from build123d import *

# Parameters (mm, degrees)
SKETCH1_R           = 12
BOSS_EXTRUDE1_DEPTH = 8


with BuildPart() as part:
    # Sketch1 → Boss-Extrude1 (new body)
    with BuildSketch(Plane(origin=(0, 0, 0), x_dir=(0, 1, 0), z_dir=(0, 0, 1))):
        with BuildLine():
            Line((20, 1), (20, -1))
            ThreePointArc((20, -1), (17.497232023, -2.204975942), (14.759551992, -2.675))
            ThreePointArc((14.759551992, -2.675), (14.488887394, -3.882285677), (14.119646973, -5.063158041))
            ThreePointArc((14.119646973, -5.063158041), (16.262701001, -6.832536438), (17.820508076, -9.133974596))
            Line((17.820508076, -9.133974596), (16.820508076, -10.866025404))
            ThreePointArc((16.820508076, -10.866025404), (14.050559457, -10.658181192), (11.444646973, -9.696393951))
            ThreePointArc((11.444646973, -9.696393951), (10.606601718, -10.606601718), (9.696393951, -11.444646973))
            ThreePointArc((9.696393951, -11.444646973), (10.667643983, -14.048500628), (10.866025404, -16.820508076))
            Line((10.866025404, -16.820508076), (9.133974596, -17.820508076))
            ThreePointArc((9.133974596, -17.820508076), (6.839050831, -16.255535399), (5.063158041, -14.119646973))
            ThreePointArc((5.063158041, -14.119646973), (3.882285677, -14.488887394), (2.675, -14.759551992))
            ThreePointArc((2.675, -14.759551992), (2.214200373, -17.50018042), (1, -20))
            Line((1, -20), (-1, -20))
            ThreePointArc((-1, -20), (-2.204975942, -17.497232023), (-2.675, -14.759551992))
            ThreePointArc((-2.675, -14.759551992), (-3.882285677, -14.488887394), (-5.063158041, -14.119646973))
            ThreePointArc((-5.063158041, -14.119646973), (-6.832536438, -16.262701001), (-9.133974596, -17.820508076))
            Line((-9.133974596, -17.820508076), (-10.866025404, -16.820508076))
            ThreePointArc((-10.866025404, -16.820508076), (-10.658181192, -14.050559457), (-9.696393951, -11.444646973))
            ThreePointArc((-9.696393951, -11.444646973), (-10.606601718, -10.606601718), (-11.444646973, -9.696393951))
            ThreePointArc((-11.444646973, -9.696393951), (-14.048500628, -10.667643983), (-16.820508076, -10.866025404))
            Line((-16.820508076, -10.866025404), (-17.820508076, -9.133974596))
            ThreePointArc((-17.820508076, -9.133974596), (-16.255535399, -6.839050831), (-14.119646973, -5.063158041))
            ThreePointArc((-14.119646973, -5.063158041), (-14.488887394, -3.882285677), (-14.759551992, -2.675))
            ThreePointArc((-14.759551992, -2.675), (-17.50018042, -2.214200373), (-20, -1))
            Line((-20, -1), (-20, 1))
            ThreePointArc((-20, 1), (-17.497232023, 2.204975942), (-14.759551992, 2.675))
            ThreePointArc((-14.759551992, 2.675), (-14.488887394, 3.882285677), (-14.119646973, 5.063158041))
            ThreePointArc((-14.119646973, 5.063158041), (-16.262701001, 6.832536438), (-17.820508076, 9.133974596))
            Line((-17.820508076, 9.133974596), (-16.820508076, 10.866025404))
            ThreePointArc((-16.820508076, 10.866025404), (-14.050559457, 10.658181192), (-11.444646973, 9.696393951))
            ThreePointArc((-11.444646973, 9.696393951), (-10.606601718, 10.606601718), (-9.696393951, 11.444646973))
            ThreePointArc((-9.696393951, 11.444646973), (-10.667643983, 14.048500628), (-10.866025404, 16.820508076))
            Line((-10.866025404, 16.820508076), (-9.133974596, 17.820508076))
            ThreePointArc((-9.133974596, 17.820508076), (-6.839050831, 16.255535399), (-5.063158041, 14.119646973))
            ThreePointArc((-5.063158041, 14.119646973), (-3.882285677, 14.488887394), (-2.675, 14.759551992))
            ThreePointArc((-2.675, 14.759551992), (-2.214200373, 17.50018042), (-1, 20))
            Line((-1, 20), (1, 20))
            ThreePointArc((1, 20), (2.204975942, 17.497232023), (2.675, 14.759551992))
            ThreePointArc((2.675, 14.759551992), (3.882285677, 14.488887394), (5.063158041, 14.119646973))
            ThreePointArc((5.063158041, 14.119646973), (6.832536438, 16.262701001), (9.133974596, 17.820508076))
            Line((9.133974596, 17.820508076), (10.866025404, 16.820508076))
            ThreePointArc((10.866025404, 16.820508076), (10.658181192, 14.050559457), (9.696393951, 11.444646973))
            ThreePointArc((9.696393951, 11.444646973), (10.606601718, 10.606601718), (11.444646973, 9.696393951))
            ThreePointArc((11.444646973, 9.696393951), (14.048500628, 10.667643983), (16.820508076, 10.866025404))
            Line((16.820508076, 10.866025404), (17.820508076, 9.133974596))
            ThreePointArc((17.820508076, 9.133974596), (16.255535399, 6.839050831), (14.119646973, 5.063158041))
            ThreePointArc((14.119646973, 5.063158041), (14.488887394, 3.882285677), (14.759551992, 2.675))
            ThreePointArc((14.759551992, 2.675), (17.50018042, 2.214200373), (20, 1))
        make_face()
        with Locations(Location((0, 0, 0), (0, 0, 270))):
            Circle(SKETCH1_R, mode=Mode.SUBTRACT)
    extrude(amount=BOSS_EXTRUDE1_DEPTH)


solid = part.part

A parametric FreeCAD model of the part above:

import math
import FreeCAD as App
import Part
import Sketcher

V = App.Vector
Q = App.Units.Quantity

doc = App.newDocument("Part")
body = doc.addObject("PartDesign::Body", "Body")

# Sketch on XY plane
sketch1 = doc.addObject("Sketcher::SketchObject", "Sketch")
body.addObject(sketch1)
sketch1.AttachmentSupport = (doc.XY_Plane, [""])
sketch1.MapMode = "FlatFace"
sketch1.addGeometry(Part.LineSegment(V(1, 20, 0), V(-1, 20, 0)), False)
sketch1.addGeometry(Part.ArcOfCircle(Part.Circle(V(7.1, 14.5, 0), V(0, 0, 1), 9.8), math.radians(146), math.radians(179)), False)
sketch1.addGeometry(Part.ArcOfCircle(Part.Circle(V(0, 0, 0), V(0, 0, 1), 15), math.radians(100.27), math.radians(109.73)), False)
sketch1.addGeometry(Part.ArcOfCircle(Part.Circle(V(-13.6, 8.9, 0), V(0, 0, 1), 10), math.radians(32), math.radians(64)), False)
sketch1.addGeometry(Part.LineSegment(V(-9.1, 17.8, 0), V(-10.9, 16.8, 0)), False)
sketch1.addGeometry(Part.ArcOfCircle(Part.Circle(V(-1.1, 16.1, 0), V(0, 0, 1), 9.8), math.radians(176), math.radians(209)), False)
sketch1.addGeometry(Part.ArcOfCircle(Part.Circle(V(0, 0, 0), V(0, 0, 1), 15), math.radians(130.27), math.radians(139.73)), False)
sketch1.addGeometry(Part.ArcOfCircle(Part.Circle(V(-16.2, 0.9, 0), V(0, 0, 1), 10), math.radians(62), math.radians(94)), False)
sketch1.addGeometry(Part.LineSegment(V(-16.8, 10.9, 0), V(-17.8, 9.1, 0)), False)
sketch1.addGeometry(Part.ArcOfCircle(Part.Circle(V(-9, 13.4, 0), V(0, 0, 1), 9.8), math.radians(-154), math.radians(-121)), False)
sketch1.addGeometry(Part.ArcOfCircle(Part.Circle(V(0, 0, 0), V(0, 0, 1), 15), math.radians(160.27), math.radians(169.73)), False)
sketch1.addGeometry(Part.ArcOfCircle(Part.Circle(V(-14.5, -7.3, 0), V(0, 0, 1), 10), math.radians(92), math.radians(124)), False)
sketch1.addGeometry(Part.LineSegment(V(-20, 1, 0), V(-20, -1, 0)), False)
sketch1.addGeometry(Part.ArcOfCircle(Part.Circle(V(-14.5, 7.1, 0), V(0, 0, 1), 9.8), math.radians(-124), math.radians(-91)), False)
sketch1.addGeometry(Part.ArcOfCircle(Part.Circle(V(0, 0, 0), V(0, 0, 1), 15), math.radians(-169.73), math.radians(-160.27)), False)
sketch1.addGeometry(Part.ArcOfCircle(Part.Circle(V(-8.9, -13.6, 0), V(0, 0, 1), 10), math.radians(122), math.radians(154)), False)
sketch1.addGeometry(Part.LineSegment(V(-17.8, -9.1, 0), V(-16.8, -10.9, 0)), False)
sketch1.addGeometry(Part.ArcOfCircle(Part.Circle(V(-16.1, -1.1, 0), V(0, 0, 1), 9.8), math.radians(-94), math.radians(-61)), False)
sketch1.addGeometry(Part.ArcOfCircle(Part.Circle(V(0, 0, 0), V(0, 0, 1), 15), math.radians(-139.73), math.radians(-130.27)), False)
sketch1.addGeometry(Part.ArcOfCircle(Part.Circle(V(-0.9, -16.2, 0), V(0, 0, 1), 10), math.radians(152), math.radians(184)), False)
sketch1.addGeometry(Part.LineSegment(V(-10.9, -16.8, 0), V(-9.1, -17.8, 0)), False)
sketch1.addGeometry(Part.ArcOfCircle(Part.Circle(V(-13.4, -9, 0), V(0, 0, 1), 9.8), math.radians(-64), math.radians(-31)), False)
sketch1.addGeometry(Part.ArcOfCircle(Part.Circle(V(0, 0, 0), V(0, 0, 1), 15), math.radians(-109.73), math.radians(-100.27)), False)
sketch1.addGeometry(Part.ArcOfCircle(Part.Circle(V(7.3, -14.5, 0), V(0, 0, 1), 10), math.radians(-178), math.radians(-146)), False)
sketch1.addGeometry(Part.LineSegment(V(-1, -20, 0), V(1, -20, 0)), False)
sketch1.addGeometry(Part.ArcOfCircle(Part.Circle(V(-7.1, -14.5, 0), V(0, 0, 1), 9.8), math.radians(-34), math.radians(-1)), False)
sketch1.addGeometry(Part.ArcOfCircle(Part.Circle(V(0, 0, 0), V(0, 0, 1), 15), math.radians(-79.73), math.radians(-70.27)), False)
sketch1.addGeometry(Part.ArcOfCircle(Part.Circle(V(13.6, -8.9, 0), V(0, 0, 1), 10), math.radians(-148), math.radians(-116)), False)
sketch1.addGeometry(Part.LineSegment(V(9.1, -17.8, 0), V(10.9, -16.8, 0)), False)
sketch1.addGeometry(Part.ArcOfCircle(Part.Circle(V(1.1, -16.1, 0), V(0, 0, 1), 9.8), math.radians(-4), math.radians(29)), False)
sketch1.addGeometry(Part.ArcOfCircle(Part.Circle(V(0, 0, 0), V(0, 0, 1), 15), math.radians(-49.73), math.radians(-40.27)), False)
sketch1.addGeometry(Part.ArcOfCircle(Part.Circle(V(16.2, -0.9, 0), V(0, 0, 1), 10), math.radians(-118), math.radians(-86)), False)
sketch1.addGeometry(Part.LineSegment(V(16.8, -10.9, 0), V(17.8, -9.1, 0)), False)
sketch1.addGeometry(Part.ArcOfCircle(Part.Circle(V(9, -13.4, 0), V(0, 0, 1), 9.8), math.radians(26), math.radians(59)), False)
sketch1.addGeometry(Part.ArcOfCircle(Part.Circle(V(0, 0, 0), V(0, 0, 1), 15), math.radians(-19.73), math.radians(-10.27)), False)
sketch1.addGeometry(Part.ArcOfCircle(Part.Circle(V(14.5, 7.3, 0), V(0, 0, 1), 10), math.radians(-88), math.radians(-56)), False)
sketch1.addGeometry(Part.LineSegment(V(20, -1, 0), V(20, 1, 0)), False)
sketch1.addGeometry(Part.ArcOfCircle(Part.Circle(V(14.5, -7.1, 0), V(0, 0, 1), 9.8), math.radians(56), math.radians(89)), False)
sketch1.addGeometry(Part.ArcOfCircle(Part.Circle(V(0, 0, 0), V(0, 0, 1), 15), math.radians(10.27), math.radians(19.73)), False)
sketch1.addGeometry(Part.ArcOfCircle(Part.Circle(V(8.9, 13.6, 0), V(0, 0, 1), 10), math.radians(-58), math.radians(-26)), False)
sketch1.addGeometry(Part.LineSegment(V(17.8, 9.1, 0), V(16.8, 10.9, 0)), False)
sketch1.addGeometry(Part.ArcOfCircle(Part.Circle(V(16.1, 1.1, 0), V(0, 0, 1), 9.8), math.radians(86), math.radians(119)), False)
sketch1.addGeometry(Part.ArcOfCircle(Part.Circle(V(0, 0, 0), V(0, 0, 1), 15), math.radians(40.27), math.radians(49.73)), False)
sketch1.addGeometry(Part.ArcOfCircle(Part.Circle(V(0.9, 16.2, 0), V(0, 0, 1), 10), math.radians(-28), math.radians(4)), False)
sketch1.addGeometry(Part.LineSegment(V(10.9, 16.8, 0), V(9.1, 17.8, 0)), False)
sketch1.addGeometry(Part.ArcOfCircle(Part.Circle(V(13.4, 9, 0), V(0, 0, 1), 9.8), math.radians(116), math.radians(149)), False)
sketch1.addGeometry(Part.ArcOfCircle(Part.Circle(V(0, 0, 0), V(0, 0, 1), 15), math.radians(70.27), math.radians(79.73)), False)
sketch1.addGeometry(Part.ArcOfCircle(Part.Circle(V(-7.3, 14.5, 0), V(0, 0, 1), 10), math.radians(2), math.radians(34)), False)
sketch1.addGeometry(Part.Circle(V(0, 0, 0), V(0, 0, 1), 12), False)
sketch1.addConstraint(Sketcher.Constraint("Coincident", 0, 2, 1, 1))
sketch1.addConstraint(Sketcher.Constraint("Coincident", 1, 2, 2, 1))
sketch1.addConstraint(Sketcher.Constraint("Coincident", 2, 2, 3, 1))
sketch1.addConstraint(Sketcher.Constraint("Coincident", 3, 2, 4, 1))
sketch1.addConstraint(Sketcher.Constraint("Coincident", 4, 2, 5, 1))
sketch1.addConstraint(Sketcher.Constraint("Coincident", 5, 2, 6, 1))
sketch1.addConstraint(Sketcher.Constraint("Coincident", 6, 2, 7, 1))
sketch1.addConstraint(Sketcher.Constraint("Coincident", 7, 2, 8, 1))
sketch1.addConstraint(Sketcher.Constraint("Coincident", 8, 2, 9, 1))
sketch1.addConstraint(Sketcher.Constraint("Coincident", 9, 2, 10, 1))
sketch1.addConstraint(Sketcher.Constraint("Coincident", 10, 2, 11, 1))
sketch1.addConstraint(Sketcher.Constraint("Coincident", 11, 2, 12, 1))
sketch1.addConstraint(Sketcher.Constraint("Coincident", 12, 2, 13, 1))
sketch1.addConstraint(Sketcher.Constraint("Coincident", 13, 2, 14, 1))
sketch1.addConstraint(Sketcher.Constraint("Coincident", 14, 2, 15, 1))
sketch1.addConstraint(Sketcher.Constraint("Coincident", 15, 2, 16, 1))
sketch1.addConstraint(Sketcher.Constraint("Coincident", 16, 2, 17, 1))
sketch1.addConstraint(Sketcher.Constraint("Coincident", 17, 2, 18, 1))
sketch1.addConstraint(Sketcher.Constraint("Coincident", 18, 2, 19, 1))
sketch1.addConstraint(Sketcher.Constraint("Coincident", 19, 2, 20, 1))
sketch1.addConstraint(Sketcher.Constraint("Coincident", 20, 2, 21, 1))
sketch1.addConstraint(Sketcher.Constraint("Coincident", 21, 2, 22, 1))
sketch1.addConstraint(Sketcher.Constraint("Coincident", 22, 2, 23, 1))
sketch1.addConstraint(Sketcher.Constraint("Coincident", 23, 2, 24, 1))
sketch1.addConstraint(Sketcher.Constraint("Coincident", 24, 2, 25, 1))
sketch1.addConstraint(Sketcher.Constraint("Coincident", 25, 2, 26, 1))
sketch1.addConstraint(Sketcher.Constraint("Coincident", 26, 2, 27, 1))
sketch1.addConstraint(Sketcher.Constraint("Coincident", 27, 2, 28, 1))
sketch1.addConstraint(Sketcher.Constraint("Coincident", 28, 2, 29, 1))
sketch1.addConstraint(Sketcher.Constraint("Coincident", 29, 2, 30, 1))
sketch1.addConstraint(Sketcher.Constraint("Coincident", 30, 2, 31, 1))
sketch1.addConstraint(Sketcher.Constraint("Coincident", 31, 2, 32, 1))
sketch1.addConstraint(Sketcher.Constraint("Coincident", 32, 2, 33, 1))
sketch1.addConstraint(Sketcher.Constraint("Coincident", 33, 2, 34, 1))
sketch1.addConstraint(Sketcher.Constraint("Coincident", 34, 2, 35, 1))
sketch1.addConstraint(Sketcher.Constraint("Coincident", 35, 2, 36, 1))
sketch1.addConstraint(Sketcher.Constraint("Coincident", 36, 2, 37, 1))
sketch1.addConstraint(Sketcher.Constraint("Coincident", 37, 2, 38, 1))
sketch1.addConstraint(Sketcher.Constraint("Coincident", 38, 2, 39, 1))
sketch1.addConstraint(Sketcher.Constraint("Coincident", 39, 2, 40, 1))
sketch1.addConstraint(Sketcher.Constraint("Coincident", 40, 2, 41, 1))
sketch1.addConstraint(Sketcher.Constraint("Coincident", 41, 2, 42, 1))
sketch1.addConstraint(Sketcher.Constraint("Coincident", 42, 2, 43, 1))
sketch1.addConstraint(Sketcher.Constraint("Coincident", 43, 2, 44, 1))
sketch1.addConstraint(Sketcher.Constraint("Coincident", 44, 2, 45, 1))
sketch1.addConstraint(Sketcher.Constraint("Coincident", 45, 2, 46, 1))
sketch1.addConstraint(Sketcher.Constraint("Coincident", 46, 2, 47, 1))
sketch1.addConstraint(Sketcher.Constraint("Coincident", 47, 2, 0, 1))
sketch1.addConstraint(Sketcher.Constraint("Horizontal", 0))
sketch1.addConstraint(Sketcher.Constraint("Vertical", 12))
sketch1.addConstraint(Sketcher.Constraint("Horizontal", 24))
sketch1.addConstraint(Sketcher.Constraint("Vertical", 36))
sketch1.addConstraint(Sketcher.Constraint("Coincident", 2, 3, -1, 1))
sketch1.addConstraint(Sketcher.Constraint("Coincident", 6, 3, -1, 1))
sketch1.addConstraint(Sketcher.Constraint("Coincident", 10, 3, -1, 1))
sketch1.addConstraint(Sketcher.Constraint("Coincident", 14, 3, -1, 1))
sketch1.addConstraint(Sketcher.Constraint("Coincident", 18, 3, -1, 1))
sketch1.addConstraint(Sketcher.Constraint("Coincident", 22, 3, -1, 1))
sketch1.addConstraint(Sketcher.Constraint("Coincident", 26, 3, -1, 1))
sketch1.addConstraint(Sketcher.Constraint("Coincident", 30, 3, -1, 1))
sketch1.addConstraint(Sketcher.Constraint("Coincident", 34, 3, -1, 1))
sketch1.addConstraint(Sketcher.Constraint("Coincident", 38, 3, -1, 1))
sketch1.addConstraint(Sketcher.Constraint("Coincident", 42, 3, -1, 1))
sketch1.addConstraint(Sketcher.Constraint("Coincident", 46, 3, -1, 1))
sketch1.addConstraint(Sketcher.Constraint("Coincident", 48, 3, -1, 1))
sketch1.addConstraint(Sketcher.Constraint("Equal", 1, 5))
sketch1.addConstraint(Sketcher.Constraint("Equal", 2, 6))
sketch1.addConstraint(Sketcher.Constraint("Equal", 3, 7))
sketch1.addConstraint(Sketcher.Constraint("Equal", 5, 9))
sketch1.addConstraint(Sketcher.Constraint("Equal", 6, 10))
sketch1.addConstraint(Sketcher.Constraint("Equal", 7, 11))
sketch1.addConstraint(Sketcher.Constraint("Equal", 9, 13))
sketch1.addConstraint(Sketcher.Constraint("Equal", 10, 14))
sketch1.addConstraint(Sketcher.Constraint("Equal", 11, 15))
sketch1.addConstraint(Sketcher.Constraint("Equal", 13, 17))
sketch1.addConstraint(Sketcher.Constraint("Equal", 14, 18))
sketch1.addConstraint(Sketcher.Constraint("Equal", 15, 19))
sketch1.addConstraint(Sketcher.Constraint("Equal", 17, 21))
sketch1.addConstraint(Sketcher.Constraint("Equal", 18, 22))
sketch1.addConstraint(Sketcher.Constraint("Equal", 19, 23))
sketch1.addConstraint(Sketcher.Constraint("Equal", 21, 25))
sketch1.addConstraint(Sketcher.Constraint("Equal", 22, 26))
sketch1.addConstraint(Sketcher.Constraint("Equal", 23, 27))
sketch1.addConstraint(Sketcher.Constraint("Equal", 25, 29))
sketch1.addConstraint(Sketcher.Constraint("Equal", 26, 30))
sketch1.addConstraint(Sketcher.Constraint("Equal", 27, 31))
sketch1.addConstraint(Sketcher.Constraint("Equal", 29, 33))
sketch1.addConstraint(Sketcher.Constraint("Equal", 30, 34))
sketch1.addConstraint(Sketcher.Constraint("Equal", 31, 35))
sketch1.addConstraint(Sketcher.Constraint("Equal", 33, 37))
sketch1.addConstraint(Sketcher.Constraint("Equal", 34, 38))
sketch1.addConstraint(Sketcher.Constraint("Equal", 35, 39))
sketch1.addConstraint(Sketcher.Constraint("Equal", 37, 41))
sketch1.addConstraint(Sketcher.Constraint("Equal", 38, 42))
sketch1.addConstraint(Sketcher.Constraint("Equal", 39, 43))
sketch1.addConstraint(Sketcher.Constraint("Equal", 41, 45))
sketch1.addConstraint(Sketcher.Constraint("Equal", 42, 46))
sketch1.addConstraint(Sketcher.Constraint("Equal", 43, 47))
sketch1.addConstraint(Sketcher.Constraint("Symmetric", 1, 3, 25, 3, -1, 1))
sketch1.addConstraint(Sketcher.Constraint("Symmetric", 3, 3, 27, 3, -1, 1))
sketch1.addConstraint(Sketcher.Constraint("Symmetric", 5, 3, 29, 3, -1, 1))
sketch1.addConstraint(Sketcher.Constraint("Symmetric", 7, 3, 31, 3, -1, 1))
sketch1.addConstraint(Sketcher.Constraint("Symmetric", 9, 3, 33, 3, -1, 1))
sketch1.addConstraint(Sketcher.Constraint("Symmetric", 11, 3, 35, 3, -1, 1))
sketch1.addConstraint(Sketcher.Constraint("Symmetric", 13, 3, 37, 3, -1, 1))
sketch1.addConstraint(Sketcher.Constraint("Symmetric", 15, 3, 39, 3, -1, 1))
sketch1.addConstraint(Sketcher.Constraint("Symmetric", 17, 3, 41, 3, -1, 1))
sketch1.addConstraint(Sketcher.Constraint("Symmetric", 19, 3, 43, 3, -1, 1))
sketch1.addConstraint(Sketcher.Constraint("Symmetric", 21, 3, 45, 3, -1, 1))
sketch1.addConstraint(Sketcher.Constraint("Symmetric", 23, 3, 47, 3, -1, 1))
sketch1.addConstraint(Sketcher.Constraint("Symmetric", 20, 2, 27, 2, -2))
sketch1.addConstraint(Sketcher.Constraint("Symmetric", 19, 2, 28, 2, -2))
sketch1.addConstraint(Sketcher.Constraint("Symmetric", 16, 2, 31, 2, -2))
sketch1.addConstraint(Sketcher.Constraint("Symmetric", 15, 2, 32, 2, -2))
sketch1.addConstraint(Sketcher.Constraint("Symmetric", 12, 2, 35, 2, -2))
sketch1.addConstraint(Sketcher.Constraint("Symmetric", 7, 2, 40, 2, -2))
sketch1.addConstraint(Sketcher.Constraint("Symmetric", 4, 2, 43, 2, -2))
sketch1.addConstraint(Sketcher.Constraint("Symmetric", 0, 2, 23, 2, -1))
sketch1.addConstraint(Sketcher.Constraint("Perpendicular", 4, 16))
sketch1.addConstraint(Sketcher.Constraint("Perpendicular", 8, 20))
sketch1.addConstraint(Sketcher.Constraint("Perpendicular", 16, 28))
sketch1.addConstraint(Sketcher.Constraint("Perpendicular", 28, 40))
sketch1.addConstraint(Sketcher.Constraint("Perpendicular", 32, 44))
sketch1.addConstraint(Sketcher.Constraint("Horizontal", 22, 2, 25, 2))
sketch1.addConstraint(Sketcher.Constraint("Horizontal", 21, 2, 26, 2))
sketch1.addConstraint(Sketcher.Constraint("Horizontal", 18, 2, 29, 2))
sketch1.addConstraint(Sketcher.Constraint("Horizontal", 17, 2, 30, 2))
sketch1.addConstraint(Sketcher.Constraint("Horizontal", 14, 2, 33, 2))
sketch1.addConstraint(Sketcher.Constraint("Horizontal", 13, 2, 34, 2))
sketch1.addConstraint(Sketcher.Constraint("Equal", 24, 12))
sketch1.addConstraint(Sketcher.Constraint("Equal", 4, 8))
sketch1.addConstraint(Sketcher.Constraint("Diameter", 48, 24.0))
sketch1.addConstraint(Sketcher.Constraint("Radius", 2, 15.0))
sketch1.addConstraint(Sketcher.Constraint("Radius", 3, 10.0))
sketch1.addConstraint(Sketcher.Constraint("DistanceX", 0, 2, 0, 1, 2.0))
sketch1.addConstraint(Sketcher.Constraint("Angle", 4, Q("-150 deg")))
sketch1.addConstraint(Sketcher.Constraint("Distance", 4, 2.0))
sketch1.addConstraint(Sketcher.Constraint("DistanceY", -1, 1, 0, 2, 20.0))
sketch1.addConstraint(Sketcher.Constraint("DistanceX", 11, 2, -1, 1, 20.0))
sketch1.addConstraint(Sketcher.Constraint("Radius", 1, 9.764691))
sketch1.addConstraint(Sketcher.Constraint("DistanceX", 1, 2, -1, 1, 2.675))
sketch1.addConstraint(Sketcher.Constraint("DistanceY", -1, 1, 10, 2, 2.675))
sketch1.addConstraint(Sketcher.Constraint("DistanceX", 9, 3, -1, 1, 9.03752))
sketch1.addConstraint(Sketcher.Constraint("DistanceY", 21, 3, -1, 1, 9.03752))
sketch1.addConstraint(Sketcher.Constraint("DistanceX", 2, 2, -1, 1, 5.063158))
sketch1.addConstraint(Sketcher.Constraint("DistanceY", -1, 1, 3, 2, 17.820508))
sketch1.addConstraint(Sketcher.Constraint("DistanceX", 7, 2, -1, 1, 16.820508))
sketch1.addConstraint(Sketcher.Constraint("DistanceY", -1, 1, 9, 2, 5.063158))
sketch1.addConstraint(Sketcher.Constraint("DistanceX", 5, 3, -1, 1, 1.126175))
sketch1.addConstraint(Sketcher.Constraint("DistanceX", 7, 3, -1, 1, 16.176532))
pad1 = doc.addObject("PartDesign::Pad", "Pad")
body.addObject(pad1)
pad1.Profile = sketch1
pad1.Length = 8

doc.recompute()
